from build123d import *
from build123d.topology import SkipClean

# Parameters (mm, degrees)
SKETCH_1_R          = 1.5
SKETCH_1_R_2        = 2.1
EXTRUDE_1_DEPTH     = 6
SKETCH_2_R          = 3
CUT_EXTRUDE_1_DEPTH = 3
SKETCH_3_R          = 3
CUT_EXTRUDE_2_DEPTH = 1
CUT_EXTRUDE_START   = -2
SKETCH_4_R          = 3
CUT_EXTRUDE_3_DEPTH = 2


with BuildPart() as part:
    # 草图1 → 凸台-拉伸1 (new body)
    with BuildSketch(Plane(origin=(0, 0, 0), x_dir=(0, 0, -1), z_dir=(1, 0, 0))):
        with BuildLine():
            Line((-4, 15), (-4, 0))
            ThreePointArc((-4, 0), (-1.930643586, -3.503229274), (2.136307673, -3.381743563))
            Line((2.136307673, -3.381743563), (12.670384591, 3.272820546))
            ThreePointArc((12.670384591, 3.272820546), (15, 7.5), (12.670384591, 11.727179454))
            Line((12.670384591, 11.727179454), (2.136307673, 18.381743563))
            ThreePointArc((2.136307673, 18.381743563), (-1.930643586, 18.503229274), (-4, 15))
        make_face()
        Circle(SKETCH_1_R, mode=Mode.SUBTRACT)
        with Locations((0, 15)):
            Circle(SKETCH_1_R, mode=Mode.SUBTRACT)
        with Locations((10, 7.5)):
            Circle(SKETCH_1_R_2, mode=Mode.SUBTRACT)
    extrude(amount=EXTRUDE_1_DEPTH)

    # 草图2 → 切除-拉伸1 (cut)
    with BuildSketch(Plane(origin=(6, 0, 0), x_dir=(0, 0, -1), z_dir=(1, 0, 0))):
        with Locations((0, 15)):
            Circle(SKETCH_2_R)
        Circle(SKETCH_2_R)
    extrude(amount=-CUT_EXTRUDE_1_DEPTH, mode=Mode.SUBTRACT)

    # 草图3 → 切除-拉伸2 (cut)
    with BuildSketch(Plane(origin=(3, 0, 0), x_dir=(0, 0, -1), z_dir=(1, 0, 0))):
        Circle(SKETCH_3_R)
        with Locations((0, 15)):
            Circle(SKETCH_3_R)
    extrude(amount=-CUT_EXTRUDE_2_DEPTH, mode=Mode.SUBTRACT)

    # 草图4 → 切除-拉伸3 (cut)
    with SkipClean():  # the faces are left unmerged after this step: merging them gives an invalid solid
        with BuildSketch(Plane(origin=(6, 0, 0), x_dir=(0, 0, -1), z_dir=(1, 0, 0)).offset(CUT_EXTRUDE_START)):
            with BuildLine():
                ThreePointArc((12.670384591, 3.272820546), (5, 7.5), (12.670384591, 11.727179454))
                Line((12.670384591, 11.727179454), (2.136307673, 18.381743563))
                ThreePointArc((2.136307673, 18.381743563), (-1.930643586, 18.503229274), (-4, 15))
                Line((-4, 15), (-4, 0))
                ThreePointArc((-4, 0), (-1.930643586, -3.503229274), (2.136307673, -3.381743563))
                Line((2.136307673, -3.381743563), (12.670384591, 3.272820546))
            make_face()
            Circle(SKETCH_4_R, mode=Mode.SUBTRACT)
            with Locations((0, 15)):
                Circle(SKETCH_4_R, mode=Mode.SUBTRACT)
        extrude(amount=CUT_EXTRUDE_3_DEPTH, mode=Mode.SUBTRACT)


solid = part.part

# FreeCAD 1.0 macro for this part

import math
import FreeCAD as App
import Part
import Sketcher
Q = App.Units.Quantity

doc = App.newDocument("Part")
body = doc.addObject("PartDesign::Body", "Body")

sketch1 = body.newObject("Sketcher::SketchObject", "Sketch")
sketch1.AttachmentSupport = (doc.getObject("YZ_Plane"), [""])
sketch1.MapMode = "FlatFace"
sketch1.addGeometry([
    Part.LineSegment(App.Vector(15, 4, 0), App.Vector(0, 4, 0)),
    Part.ArcOfCircle(Part.Circle(App.Vector(0, 0, 0), App.Vector(0, 0, 1), 4), math.radians(90), math.radians(212)),
    Part.LineSegment(App.Vector(-3.4, -2.1, 0), App.Vector(3.3, -12.7, 0)),
    Part.ArcOfCircle(Part.Circle(App.Vector(7.5, -10, 0), App.Vector(0, 0, 1), 5), math.radians(-148), math.radians(-32)),
    Part.LineSegment(App.Vector(11.7, -12.7, 0), App.Vector(18.4, -2.1, 0)),
    Part.ArcOfCircle(Part.Circle(App.Vector(15, 0, 0), App.Vector(0, 0, 1), 4), math.radians(-32), math.radians(90)),
    Part.Circle(App.Vector(0, 0, 0), App.Vector(0, 0, 1), 1.5),
    Part.Circle(App.Vector(15, 0, 0), App.Vector(0, 0, 1), 1.5),
    Part.Circle(App.Vector(7.5, -10, 0), App.Vector(0, 0, 1), 2.1),
], False)
sketch1.addConstraint([
    Sketcher.Constraint("Tangent", 0, 2, 1, 1),
    Sketcher.Constraint("Tangent", 1, 2, 2, 1),
    Sketcher.Constraint("Tangent", 2, 2, 3, 1),
    Sketcher.Constraint("Tangent", 3, 2, 4, 1),
    Sketcher.Constraint("Tangent", 4, 2, 5, 1),
    Sketcher.Constraint("Tangent", 5, 2, 0, 1),
    Sketcher.Constraint("Horizontal", 0),
    Sketcher.Constraint("Coincident", 1, 3, -1, 1),
    Sketcher.Constraint("Coincident", 6, 3, -1, 1),
    Sketcher.Constraint("Coincident", 7, 3, 5, 3),
    Sketcher.Constraint("Coincident", 8, 3, 3, 3),
    Sketcher.Constraint("Equal", 1, 5),
    Sketcher.Constraint("Equal", 6, 7),
    Sketcher.Constraint("Horizontal", 2, 2, 3, 2),
    Sketcher.Constraint("Diameter", 6, Q("3 mm")),
    Sketcher.Constraint("Radius", 1, Q("4 mm")),
    Sketcher.Constraint("Radius", 3, Q("5 mm")),
    Sketcher.Constraint("Diameter", 8, Q("4.2 mm")),
    Sketcher.Constraint("DistanceX", 0, 2, 0, 1, Q("15 mm")),
    Sketcher.Constraint("DistanceY", 3, 3, -1, 1, Q("10 mm")),
])
pad1 = body.newObject("PartDesign::Pad", "Pad")
pad1.Profile = sketch1
pad1.Length = 6

sketch2 = body.newObject("Sketcher::SketchObject", "Sketch001")
sketch2.AttachmentSupport = (doc.getObject("YZ_Plane"), [""])
sketch2.MapMode = "FlatFace"
sketch2.AttachmentOffset = App.Placement(App.Vector(0, 0, 6), App.Rotation())
sketch2.addGeometry([
    Part.Circle(App.Vector(15, 0, 0), App.Vector(0, 0, 1), 3),
    Part.Circle(App.Vector(0, 0, 0), App.Vector(0, 0, 1), 3),
], False)
sketch2.addConstraint([
    Sketcher.Constraint("Coincident", 1, 3, -1, 1),
    Sketcher.Constraint("Equal", 0, 1),
    Sketcher.Constraint("PointOnObject", 0, 3, -1),
    Sketcher.Constraint("Diameter", 0, Q("6 mm")),
    Sketcher.Constraint("DistanceX", -1, 1, 0, 3, Q("15 mm")),
])
pocket1 = body.newObject("PartDesign::Pocket", "Pocket")
pocket1.Profile = sketch2
pocket1.Length = 3

sketch3 = body.newObject("Sketcher::SketchObject", "Sketch002")
sketch3.AttachmentSupport = (doc.getObject("YZ_Plane"), [""])
sketch3.MapMode = "FlatFace"
sketch3.AttachmentOffset = App.Placement(App.Vector(0, 0, 3), App.Rotation())
sketch3.addGeometry([
    Part.Circle(App.Vector(0, 0, 0), App.Vector(0, 0, 1), 3),
    Part.Circle(App.Vector(15, 0, 0), App.Vector(0, 0, 1), 3),
], False)
sketch3.addConstraint([
    Sketcher.Constraint("Coincident", 0, 3, -1, 1),
    Sketcher.Constraint("Equal", 0, 1),
    Sketcher.Constraint("PointOnObject", 1, 3, -1),
    Sketcher.Constraint("Diameter", 0, Q("6 mm")),
    Sketcher.Constraint("DistanceX", -1, 1, 1, 3, Q("15 mm")),
])
pocket2 = body.newObject("PartDesign::Pocket", "Pocket001")
pocket2.Profile = sketch3
pocket2.Length = 1

sketch4 = body.newObject("Sketcher::SketchObject", "Sketch003")
sketch4.AttachmentSupport = (doc.getObject("YZ_Plane"), [""])
sketch4.MapMode = "FlatFace"
sketch4.AttachmentOffset = App.Placement(App.Vector(0, 0, 4), App.Rotation())
sketch4.addGeometry([
    Part.ArcOfCircle(Part.Circle(App.Vector(7.5, -10, 0), App.Vector(0, 0, 1), 5), math.radians(-32), math.radians(212)),
    Part.LineSegment(App.Vector(11.7, -12.7, 0), App.Vector(18.4, -2.1, 0)),
    Part.ArcOfCircle(Part.Circle(App.Vector(15, 0, 0), App.Vector(0, 0, 1), 4), math.radians(-32), math.radians(90)),
    Part.LineSegment(App.Vector(15, 4, 0), App.Vector(0, 4, 0)),
    Part.ArcOfCircle(Part.Circle(App.Vector(0, 0, 0), App.Vector(0, 0, 1), 4), math.radians(90), math.radians(212)),
    Part.LineSegment(App.Vector(-3.4, -2.1, 0), App.Vector(3.3, -12.7, 0)),
    Part.Circle(App.Vector(0, 0, 0), App.Vector(0, 0, 1), 3),
    Part.Circle(App.Vector(15, 0, 0), App.Vector(0, 0, 1), 3),
], False)
sketch4.addConstraint([
    Sketcher.Constraint("Tangent", 0, 1, 1, 1),
    Sketcher.Constraint("Tangent", 1, 2, 2, 1),
    Sketcher.Constraint("Tangent", 2, 2, 3, 1),
    Sketcher.Constraint("Tangent", 3, 2, 4, 1),
    Sketcher.Constraint("Tangent", 4, 2, 5, 1),
    Sketcher.Constraint("Tangent", 5, 2, 0, 2),
    Sketcher.Constraint("Horizontal", 3),
    Sketcher.Constraint("Coincident", 4, 3, -1, 1),
    Sketcher.Constraint("Coincident", 6, 3, -1, 1),
    Sketcher.Constraint("Coincident", 7, 3, 2, 3),
    Sketcher.Constraint("Equal", 2, 4),
    Sketcher.Constraint("Equal", 6, 7),
    Sketcher.Constraint("Horizontal", 1, 2, 4, 2),
    Sketcher.Constraint("Diameter", 6, Q("6 mm")),
    Sketcher.Constraint("Radius", 0, Q("5 mm")),
    Sketcher.Constraint("Radius", 2, Q("4 mm")),
    Sketcher.Constraint("DistanceX", 3, 2, 3, 1, Q("15 mm")),
    Sketcher.Constraint("DistanceY", 0, 3, -1, 1, Q("10 mm")),
])
pocket3 = body.newObject("PartDesign::Pocket", "Pocket002")
pocket3.Profile = sketch4
pocket3.Length = 2
pocket3.Reversed = True

doc.recompute()
